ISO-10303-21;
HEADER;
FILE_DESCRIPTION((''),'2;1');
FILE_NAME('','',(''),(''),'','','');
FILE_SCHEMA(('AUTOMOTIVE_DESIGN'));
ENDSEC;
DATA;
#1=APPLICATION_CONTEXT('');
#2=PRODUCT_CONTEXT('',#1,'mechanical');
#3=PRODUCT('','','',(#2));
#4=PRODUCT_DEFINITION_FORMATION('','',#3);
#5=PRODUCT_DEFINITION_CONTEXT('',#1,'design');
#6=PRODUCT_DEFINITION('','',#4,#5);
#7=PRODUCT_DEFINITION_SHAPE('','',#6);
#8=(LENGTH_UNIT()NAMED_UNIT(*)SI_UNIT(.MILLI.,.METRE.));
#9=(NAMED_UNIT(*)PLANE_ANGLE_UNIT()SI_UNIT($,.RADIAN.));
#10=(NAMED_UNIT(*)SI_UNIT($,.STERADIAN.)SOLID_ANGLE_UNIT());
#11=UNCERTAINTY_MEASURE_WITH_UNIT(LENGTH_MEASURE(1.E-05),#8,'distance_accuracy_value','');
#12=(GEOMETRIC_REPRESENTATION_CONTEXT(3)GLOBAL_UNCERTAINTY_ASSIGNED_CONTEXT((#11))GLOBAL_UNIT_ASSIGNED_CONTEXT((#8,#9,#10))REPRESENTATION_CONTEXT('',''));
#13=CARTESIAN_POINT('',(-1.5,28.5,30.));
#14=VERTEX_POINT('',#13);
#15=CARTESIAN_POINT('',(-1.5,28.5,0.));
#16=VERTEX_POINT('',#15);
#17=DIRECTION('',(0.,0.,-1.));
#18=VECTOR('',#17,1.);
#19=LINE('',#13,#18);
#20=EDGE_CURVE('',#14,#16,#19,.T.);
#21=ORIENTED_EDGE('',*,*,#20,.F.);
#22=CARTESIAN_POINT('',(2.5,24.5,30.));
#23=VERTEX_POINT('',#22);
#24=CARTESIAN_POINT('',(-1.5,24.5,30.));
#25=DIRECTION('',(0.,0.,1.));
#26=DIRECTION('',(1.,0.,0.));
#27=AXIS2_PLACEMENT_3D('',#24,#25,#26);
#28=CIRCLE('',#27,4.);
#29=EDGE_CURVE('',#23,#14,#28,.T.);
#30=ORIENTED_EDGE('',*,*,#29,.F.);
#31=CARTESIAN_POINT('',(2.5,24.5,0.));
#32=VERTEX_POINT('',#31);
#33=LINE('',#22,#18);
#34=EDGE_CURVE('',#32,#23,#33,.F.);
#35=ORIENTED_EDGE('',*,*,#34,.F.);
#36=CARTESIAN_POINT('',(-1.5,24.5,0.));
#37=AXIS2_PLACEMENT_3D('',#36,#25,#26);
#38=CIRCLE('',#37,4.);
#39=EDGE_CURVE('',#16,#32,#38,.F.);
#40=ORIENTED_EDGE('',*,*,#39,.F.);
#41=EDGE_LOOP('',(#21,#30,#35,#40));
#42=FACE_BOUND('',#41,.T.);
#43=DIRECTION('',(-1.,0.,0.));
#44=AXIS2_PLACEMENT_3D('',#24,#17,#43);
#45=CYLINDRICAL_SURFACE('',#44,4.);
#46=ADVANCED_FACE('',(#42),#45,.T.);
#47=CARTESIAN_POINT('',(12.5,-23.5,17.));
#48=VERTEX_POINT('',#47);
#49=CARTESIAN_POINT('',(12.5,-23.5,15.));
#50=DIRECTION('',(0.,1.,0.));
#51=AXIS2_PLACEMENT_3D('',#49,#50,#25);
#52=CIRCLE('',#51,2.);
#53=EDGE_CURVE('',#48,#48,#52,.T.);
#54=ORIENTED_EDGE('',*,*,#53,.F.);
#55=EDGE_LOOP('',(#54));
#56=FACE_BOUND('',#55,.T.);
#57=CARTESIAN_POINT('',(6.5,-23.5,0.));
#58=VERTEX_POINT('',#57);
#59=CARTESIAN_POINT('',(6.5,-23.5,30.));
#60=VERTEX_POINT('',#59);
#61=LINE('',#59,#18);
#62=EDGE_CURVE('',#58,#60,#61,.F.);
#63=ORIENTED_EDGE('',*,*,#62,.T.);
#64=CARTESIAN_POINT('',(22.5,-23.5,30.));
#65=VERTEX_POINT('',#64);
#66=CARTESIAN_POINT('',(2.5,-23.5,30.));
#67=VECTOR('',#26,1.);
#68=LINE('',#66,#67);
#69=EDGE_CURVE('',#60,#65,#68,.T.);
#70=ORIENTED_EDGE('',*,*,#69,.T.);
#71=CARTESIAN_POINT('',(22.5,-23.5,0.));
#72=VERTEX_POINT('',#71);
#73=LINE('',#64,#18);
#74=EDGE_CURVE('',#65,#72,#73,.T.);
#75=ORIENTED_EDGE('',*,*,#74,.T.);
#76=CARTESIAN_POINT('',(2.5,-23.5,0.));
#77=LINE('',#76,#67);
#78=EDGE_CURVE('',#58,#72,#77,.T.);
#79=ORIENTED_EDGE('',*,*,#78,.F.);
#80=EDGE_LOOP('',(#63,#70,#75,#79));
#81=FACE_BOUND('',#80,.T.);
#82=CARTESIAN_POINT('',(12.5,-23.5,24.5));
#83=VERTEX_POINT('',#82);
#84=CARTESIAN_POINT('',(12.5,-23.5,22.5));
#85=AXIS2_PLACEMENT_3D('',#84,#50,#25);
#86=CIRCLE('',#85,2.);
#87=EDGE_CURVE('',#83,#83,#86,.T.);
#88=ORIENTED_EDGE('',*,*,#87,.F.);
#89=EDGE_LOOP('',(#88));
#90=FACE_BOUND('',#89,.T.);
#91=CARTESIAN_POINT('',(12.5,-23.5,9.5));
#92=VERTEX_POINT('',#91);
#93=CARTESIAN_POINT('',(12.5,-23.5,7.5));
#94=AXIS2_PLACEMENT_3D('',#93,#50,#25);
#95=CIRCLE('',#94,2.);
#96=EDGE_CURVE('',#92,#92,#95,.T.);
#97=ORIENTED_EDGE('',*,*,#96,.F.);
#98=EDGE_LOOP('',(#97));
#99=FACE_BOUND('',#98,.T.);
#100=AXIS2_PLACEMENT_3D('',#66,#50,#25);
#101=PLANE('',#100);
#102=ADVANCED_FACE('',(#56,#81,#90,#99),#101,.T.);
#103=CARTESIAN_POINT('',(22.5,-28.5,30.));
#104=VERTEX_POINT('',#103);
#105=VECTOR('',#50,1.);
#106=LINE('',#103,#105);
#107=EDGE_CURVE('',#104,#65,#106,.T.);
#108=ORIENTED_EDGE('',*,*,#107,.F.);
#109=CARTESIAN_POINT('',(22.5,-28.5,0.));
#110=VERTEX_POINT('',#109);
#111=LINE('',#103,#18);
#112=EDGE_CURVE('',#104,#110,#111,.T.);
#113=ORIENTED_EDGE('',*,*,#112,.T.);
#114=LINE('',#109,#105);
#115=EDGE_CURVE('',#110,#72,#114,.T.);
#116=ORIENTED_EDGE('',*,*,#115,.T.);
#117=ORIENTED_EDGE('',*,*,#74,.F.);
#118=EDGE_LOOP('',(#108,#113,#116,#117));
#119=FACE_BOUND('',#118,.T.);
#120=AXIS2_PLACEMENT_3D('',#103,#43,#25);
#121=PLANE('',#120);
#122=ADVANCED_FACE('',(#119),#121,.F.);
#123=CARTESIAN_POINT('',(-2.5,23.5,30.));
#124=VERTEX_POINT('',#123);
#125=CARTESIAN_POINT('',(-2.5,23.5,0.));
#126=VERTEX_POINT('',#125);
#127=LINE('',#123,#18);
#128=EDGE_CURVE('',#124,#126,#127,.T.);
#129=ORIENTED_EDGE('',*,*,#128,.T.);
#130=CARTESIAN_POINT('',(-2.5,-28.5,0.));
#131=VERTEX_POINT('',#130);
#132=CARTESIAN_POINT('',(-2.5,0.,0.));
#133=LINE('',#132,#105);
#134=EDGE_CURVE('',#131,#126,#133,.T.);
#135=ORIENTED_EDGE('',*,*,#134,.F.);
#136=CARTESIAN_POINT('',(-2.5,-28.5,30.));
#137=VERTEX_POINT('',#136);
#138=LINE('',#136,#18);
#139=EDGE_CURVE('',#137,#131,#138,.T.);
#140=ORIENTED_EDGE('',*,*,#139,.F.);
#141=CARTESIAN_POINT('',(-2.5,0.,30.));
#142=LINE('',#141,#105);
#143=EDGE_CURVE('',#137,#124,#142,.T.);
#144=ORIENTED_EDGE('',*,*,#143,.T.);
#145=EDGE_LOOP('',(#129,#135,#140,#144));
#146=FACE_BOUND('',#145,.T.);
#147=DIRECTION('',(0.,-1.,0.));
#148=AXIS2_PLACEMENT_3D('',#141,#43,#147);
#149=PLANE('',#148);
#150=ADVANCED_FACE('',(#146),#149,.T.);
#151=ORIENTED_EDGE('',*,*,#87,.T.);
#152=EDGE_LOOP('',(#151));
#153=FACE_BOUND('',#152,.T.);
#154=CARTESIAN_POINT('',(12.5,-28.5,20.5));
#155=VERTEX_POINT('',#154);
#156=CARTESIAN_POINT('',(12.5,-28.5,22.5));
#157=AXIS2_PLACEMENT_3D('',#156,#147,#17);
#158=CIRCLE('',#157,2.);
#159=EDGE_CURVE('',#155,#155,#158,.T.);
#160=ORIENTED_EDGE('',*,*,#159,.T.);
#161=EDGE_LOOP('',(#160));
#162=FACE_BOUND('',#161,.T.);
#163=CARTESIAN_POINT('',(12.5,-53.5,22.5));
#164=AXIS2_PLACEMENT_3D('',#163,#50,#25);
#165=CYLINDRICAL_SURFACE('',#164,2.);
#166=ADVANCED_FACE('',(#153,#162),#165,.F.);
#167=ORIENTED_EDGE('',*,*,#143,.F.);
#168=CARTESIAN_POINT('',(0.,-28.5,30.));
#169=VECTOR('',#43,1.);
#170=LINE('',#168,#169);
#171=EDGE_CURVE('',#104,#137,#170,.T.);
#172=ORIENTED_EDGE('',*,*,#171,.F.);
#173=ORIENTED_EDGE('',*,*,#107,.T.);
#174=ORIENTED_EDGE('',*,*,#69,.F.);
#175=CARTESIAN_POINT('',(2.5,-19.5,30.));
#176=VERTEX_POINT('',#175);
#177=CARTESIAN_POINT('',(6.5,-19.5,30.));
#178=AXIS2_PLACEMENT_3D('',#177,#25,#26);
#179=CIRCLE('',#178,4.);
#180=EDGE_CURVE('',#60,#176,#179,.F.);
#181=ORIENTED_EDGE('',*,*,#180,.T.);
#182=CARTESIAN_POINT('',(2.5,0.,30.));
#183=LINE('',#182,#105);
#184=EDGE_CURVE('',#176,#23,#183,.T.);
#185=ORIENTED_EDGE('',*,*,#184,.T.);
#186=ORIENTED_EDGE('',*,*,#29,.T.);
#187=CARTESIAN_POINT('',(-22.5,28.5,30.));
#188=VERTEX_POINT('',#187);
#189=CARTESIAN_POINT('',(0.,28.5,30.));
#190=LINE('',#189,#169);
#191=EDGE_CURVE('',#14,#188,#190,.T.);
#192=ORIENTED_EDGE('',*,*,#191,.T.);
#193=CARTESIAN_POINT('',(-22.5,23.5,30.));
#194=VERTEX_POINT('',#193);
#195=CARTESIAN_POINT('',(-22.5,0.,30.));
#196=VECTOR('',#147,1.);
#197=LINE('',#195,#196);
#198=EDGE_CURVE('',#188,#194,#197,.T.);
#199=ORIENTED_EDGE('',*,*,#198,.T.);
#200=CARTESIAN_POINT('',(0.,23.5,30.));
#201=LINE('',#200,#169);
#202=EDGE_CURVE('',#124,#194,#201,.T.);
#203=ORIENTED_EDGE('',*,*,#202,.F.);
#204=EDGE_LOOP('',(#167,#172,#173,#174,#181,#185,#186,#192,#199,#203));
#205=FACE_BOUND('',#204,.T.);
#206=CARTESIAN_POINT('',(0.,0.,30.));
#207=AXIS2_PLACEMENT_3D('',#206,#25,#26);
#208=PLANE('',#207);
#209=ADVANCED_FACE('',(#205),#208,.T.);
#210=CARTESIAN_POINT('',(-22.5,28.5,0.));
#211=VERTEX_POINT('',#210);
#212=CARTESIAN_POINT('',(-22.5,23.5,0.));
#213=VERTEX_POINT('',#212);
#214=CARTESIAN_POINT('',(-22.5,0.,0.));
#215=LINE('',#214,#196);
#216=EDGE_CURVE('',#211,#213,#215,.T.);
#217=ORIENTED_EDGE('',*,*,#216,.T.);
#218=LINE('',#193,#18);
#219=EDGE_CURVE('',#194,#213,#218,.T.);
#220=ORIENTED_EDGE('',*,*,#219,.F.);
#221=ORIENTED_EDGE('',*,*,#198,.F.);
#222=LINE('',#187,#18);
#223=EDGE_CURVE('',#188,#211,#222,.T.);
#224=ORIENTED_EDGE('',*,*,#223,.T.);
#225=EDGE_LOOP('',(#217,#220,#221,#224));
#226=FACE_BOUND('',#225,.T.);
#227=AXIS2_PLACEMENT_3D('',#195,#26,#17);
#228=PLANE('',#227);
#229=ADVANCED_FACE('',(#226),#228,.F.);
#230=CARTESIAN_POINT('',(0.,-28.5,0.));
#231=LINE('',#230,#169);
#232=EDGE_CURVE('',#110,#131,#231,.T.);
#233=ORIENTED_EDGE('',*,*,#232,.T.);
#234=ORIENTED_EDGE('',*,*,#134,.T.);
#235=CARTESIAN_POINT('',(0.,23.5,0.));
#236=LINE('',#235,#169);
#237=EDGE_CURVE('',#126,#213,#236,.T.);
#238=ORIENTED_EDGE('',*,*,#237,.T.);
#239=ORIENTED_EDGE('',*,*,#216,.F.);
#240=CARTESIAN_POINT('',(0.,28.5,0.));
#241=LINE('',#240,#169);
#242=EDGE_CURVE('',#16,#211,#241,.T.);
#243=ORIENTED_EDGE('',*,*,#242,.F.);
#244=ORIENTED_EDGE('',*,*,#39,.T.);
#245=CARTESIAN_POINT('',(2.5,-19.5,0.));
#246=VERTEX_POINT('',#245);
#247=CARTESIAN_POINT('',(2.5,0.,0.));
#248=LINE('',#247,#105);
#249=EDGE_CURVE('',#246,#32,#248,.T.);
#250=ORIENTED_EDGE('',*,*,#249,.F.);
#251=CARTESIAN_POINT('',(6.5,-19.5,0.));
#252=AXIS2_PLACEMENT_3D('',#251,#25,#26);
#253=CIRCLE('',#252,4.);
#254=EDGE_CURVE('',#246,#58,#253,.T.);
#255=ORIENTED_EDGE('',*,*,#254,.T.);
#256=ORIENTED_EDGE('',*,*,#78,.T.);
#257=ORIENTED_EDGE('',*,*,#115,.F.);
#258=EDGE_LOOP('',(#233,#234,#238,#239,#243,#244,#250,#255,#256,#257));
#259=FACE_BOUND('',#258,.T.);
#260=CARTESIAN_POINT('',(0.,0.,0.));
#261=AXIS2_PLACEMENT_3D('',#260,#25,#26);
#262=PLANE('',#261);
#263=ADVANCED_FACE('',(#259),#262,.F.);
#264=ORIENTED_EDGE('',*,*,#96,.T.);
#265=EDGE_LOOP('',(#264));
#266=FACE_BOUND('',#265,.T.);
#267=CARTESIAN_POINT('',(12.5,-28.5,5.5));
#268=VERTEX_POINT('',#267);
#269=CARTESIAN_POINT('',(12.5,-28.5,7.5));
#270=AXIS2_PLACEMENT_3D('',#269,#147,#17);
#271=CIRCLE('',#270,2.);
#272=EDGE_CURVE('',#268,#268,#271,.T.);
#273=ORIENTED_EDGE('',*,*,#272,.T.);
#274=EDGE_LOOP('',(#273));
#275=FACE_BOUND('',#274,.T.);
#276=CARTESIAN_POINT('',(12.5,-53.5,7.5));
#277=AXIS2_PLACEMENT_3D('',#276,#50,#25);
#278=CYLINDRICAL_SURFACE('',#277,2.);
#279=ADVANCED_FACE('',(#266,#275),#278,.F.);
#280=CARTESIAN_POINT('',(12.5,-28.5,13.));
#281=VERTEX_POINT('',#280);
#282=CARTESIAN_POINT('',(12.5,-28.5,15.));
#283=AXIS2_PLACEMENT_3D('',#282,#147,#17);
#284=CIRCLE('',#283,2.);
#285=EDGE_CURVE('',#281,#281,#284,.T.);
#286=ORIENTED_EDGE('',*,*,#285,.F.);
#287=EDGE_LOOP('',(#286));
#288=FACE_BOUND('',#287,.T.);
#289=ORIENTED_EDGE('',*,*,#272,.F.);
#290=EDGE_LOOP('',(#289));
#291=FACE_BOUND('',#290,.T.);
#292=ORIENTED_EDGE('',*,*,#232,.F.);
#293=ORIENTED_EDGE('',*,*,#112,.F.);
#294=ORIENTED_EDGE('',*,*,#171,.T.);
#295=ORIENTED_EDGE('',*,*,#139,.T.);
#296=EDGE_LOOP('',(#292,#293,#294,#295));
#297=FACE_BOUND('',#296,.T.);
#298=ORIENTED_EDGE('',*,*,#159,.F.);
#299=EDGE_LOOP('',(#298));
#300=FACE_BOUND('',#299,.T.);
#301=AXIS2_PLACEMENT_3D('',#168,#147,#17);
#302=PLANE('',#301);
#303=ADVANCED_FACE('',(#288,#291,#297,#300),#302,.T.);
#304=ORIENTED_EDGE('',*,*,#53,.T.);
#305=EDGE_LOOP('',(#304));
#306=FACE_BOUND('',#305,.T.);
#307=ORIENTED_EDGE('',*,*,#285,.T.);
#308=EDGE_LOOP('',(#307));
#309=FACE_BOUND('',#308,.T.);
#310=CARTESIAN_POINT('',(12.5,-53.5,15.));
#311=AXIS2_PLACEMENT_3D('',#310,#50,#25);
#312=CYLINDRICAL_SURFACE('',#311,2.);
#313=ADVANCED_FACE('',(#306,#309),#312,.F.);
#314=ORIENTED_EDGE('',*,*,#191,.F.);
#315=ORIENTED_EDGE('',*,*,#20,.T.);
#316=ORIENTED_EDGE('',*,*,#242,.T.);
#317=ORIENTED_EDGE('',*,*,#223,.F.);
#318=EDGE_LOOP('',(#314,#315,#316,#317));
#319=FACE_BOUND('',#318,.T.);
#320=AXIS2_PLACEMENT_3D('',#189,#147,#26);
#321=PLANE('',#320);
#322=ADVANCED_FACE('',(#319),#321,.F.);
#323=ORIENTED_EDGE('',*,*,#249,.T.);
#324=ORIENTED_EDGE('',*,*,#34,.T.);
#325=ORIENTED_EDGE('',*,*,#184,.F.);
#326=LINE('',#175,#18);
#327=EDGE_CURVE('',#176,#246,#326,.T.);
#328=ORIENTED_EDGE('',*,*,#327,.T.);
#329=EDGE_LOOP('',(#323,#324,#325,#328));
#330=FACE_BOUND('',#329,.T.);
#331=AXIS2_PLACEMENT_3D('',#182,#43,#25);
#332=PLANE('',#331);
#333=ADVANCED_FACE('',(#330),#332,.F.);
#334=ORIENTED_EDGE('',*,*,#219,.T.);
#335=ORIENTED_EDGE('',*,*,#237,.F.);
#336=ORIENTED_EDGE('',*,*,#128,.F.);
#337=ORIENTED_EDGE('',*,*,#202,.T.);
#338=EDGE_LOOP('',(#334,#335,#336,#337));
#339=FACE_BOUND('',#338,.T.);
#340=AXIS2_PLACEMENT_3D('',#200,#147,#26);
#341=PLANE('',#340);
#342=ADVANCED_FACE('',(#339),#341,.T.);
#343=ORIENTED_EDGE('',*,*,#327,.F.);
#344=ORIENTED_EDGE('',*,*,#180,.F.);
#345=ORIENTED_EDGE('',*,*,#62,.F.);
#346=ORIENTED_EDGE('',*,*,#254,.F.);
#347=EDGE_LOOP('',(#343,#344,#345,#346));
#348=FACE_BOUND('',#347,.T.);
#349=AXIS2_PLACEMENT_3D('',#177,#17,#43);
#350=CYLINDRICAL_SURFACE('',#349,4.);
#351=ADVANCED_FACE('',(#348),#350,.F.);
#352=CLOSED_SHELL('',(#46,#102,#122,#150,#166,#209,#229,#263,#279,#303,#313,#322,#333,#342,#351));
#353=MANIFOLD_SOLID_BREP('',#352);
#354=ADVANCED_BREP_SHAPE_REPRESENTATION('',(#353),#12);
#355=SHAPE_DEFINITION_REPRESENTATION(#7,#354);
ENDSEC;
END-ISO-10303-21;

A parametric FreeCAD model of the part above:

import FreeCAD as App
import Part
import Sketcher

V = App.Vector
Q = App.Units.Quantity


def edges_at(feature, points):
    """Names of the edges that pass closest to the given points."""
    edges = feature.Shape.Edges
    near = lambda p: min(range(len(edges)), key=lambda i: edges[i].distToShape(Part.Vertex(*p))[0])
    return sorted({f"Edge{near(p) + 1}" for p in points})


def add_polygon(sketch, points):
    """Adds a closed chain of lines whose ends are joined by coincident constraints."""
    first, n = sketch.GeometryCount, len(points)
    for a, b in zip(points, points[1:] + points[:1]):
        sketch.addGeometry(Part.LineSegment(App.Vector(*a, 0), App.Vector(*b, 0)), False)
    for i in range(n):
        sketch.addConstraint(Sketcher.Constraint("Coincident", first + i, 2, first + (i + 1) % n, 1))

doc = App.newDocument("Part")
params = doc.addObject("Spreadsheet::Sheet", "Params")
for row, (alias, value) in enumerate([
    ("sketch1_width", "20 mm"),
    ("sketch1_width2", "25 mm"),
    ("sketch1_height", "5 mm"),
    ("sketch1_height2", "52 mm"),
    ("pad1_length", "30 mm"),
    ("fillet_radius", "4 mm"),
    ("sketch2_diameter", "4 mm"),
    ("pocket1_length", "30 mm"),
], start=1):
    params.set(f"A{row}", alias)
    params.set(f"B{row}", "=" + value)
    params.setAlias(f"B{row}", alias)

body = doc.addObject("PartDesign::Body", "Body")

# Sketch on XY plane
sketch1 = doc.addObject("Sketcher::SketchObject", "Sketch")
body.addObject(sketch1)
sketch1.AttachmentSupport = (doc.XY_Plane, [""])
sketch1.MapMode = "FlatFace"
add_polygon(sketch1, [(-22, 28), (-22, 24), (-2, 24), (-2, -28), (22, -28), (22, -24), (2, -24), (2, 28)])  # lines 0-7
sketch1.addConstraint([
    Sketcher.Constraint("Vertical", 0),
    Sketcher.Constraint("Horizontal", 1),
    Sketcher.Constraint("Vertical", 2),
    Sketcher.Constraint("Horizontal", 3),
    Sketcher.Constraint("Vertical", 4),
    Sketcher.Constraint("Horizontal", 5),
    Sketcher.Constraint("Vertical", 6),
    Sketcher.Constraint("Horizontal", 7),
    Sketcher.Constraint("Symmetric", 0, 2, 4, 2, -1, 1),
    Sketcher.Constraint("Symmetric", 2, 2, 6, 2, -1, 1),
    Sketcher.Constraint("DistanceX", 1, 1, 1, 2, Q("20 mm")),
    Sketcher.Constraint("DistanceX", 3, 1, 3, 2, Q("25 mm")),
    Sketcher.Constraint("DistanceY", 0, 2, 0, 1, Q("5 mm")),
    Sketcher.Constraint("DistanceY", 2, 2, 2, 1, Q("52 mm")),
])
sketch1.setExpression("Constraints[18]", "Params.sketch1_width")
sketch1.setExpression("Constraints[19]", "Params.sketch1_width2")
sketch1.setExpression("Constraints[20]", "Params.sketch1_height")
sketch1.setExpression("Constraints[21]", "Params.sketch1_height2")
pad1 = doc.addObject("PartDesign::Pad", "Pad")
body.addObject(pad1)
pad1.Profile = sketch1
pad1.setExpression("Length", "Params.pad1_length")
doc.recompute()

fillet = doc.addObject("PartDesign::Fillet", "Fillet")
body.addObject(fillet)
fillet.Base = (pad1, edges_at(pad1, [(2.5, 28.5, 15), (2.5, -23.5, 15)]))
fillet.setExpression("Radius", "Params.fillet_radius")

# Sketch on XZ plane
sketch2 = doc.addObject("Sketcher::SketchObject", "Sketch001")
body.addObject(sketch2)
sketch2.AttachmentSupport = (doc.XZ_Plane, [""])
sketch2.MapMode = "FlatFace"
sketch2.AttachmentOffset = App.Placement(V(0, 0, 23.5), App.Rotation())
sketch2.addGeometry([
    Part.Circle(V(12.5, 15, 0), V(0, 0, 1), 2),
    Part.Circle(V(12.5, 22.5, 0), V(0, 0, 1), 2),
    Part.Circle(V(12.5, 7.5, 0), V(0, 0, 1), 2),
], False)
sketch2.addConstraint([
    Sketcher.Constraint("Equal", 0, 1),
    Sketcher.Constraint("Equal", 1, 2),
    Sketcher.Constraint("Vertical", 0, 3, 1, 3),
    Sketcher.Constraint("Vertical", 1, 3, 2, 3),
    Sketcher.Constraint("Diameter", 0, Q("4 mm")),
    Sketcher.Constraint("DistanceY", -1, 1, 0, 3, Q("15 mm")),
    Sketcher.Constraint("DistanceY", 2, 3, 1, 3, Q("15 mm")),
    Sketcher.Constraint("DistanceX", -1, 1, 0, 3, Q("12.5 mm")),
    Sketcher.Constraint("DistanceY", -1, 1, 1, 3, Q("22.5 mm")),
])
sketch2.setExpression("Constraints[4]", "Params.sketch2_diameter")
pocket1 = doc.addObject("PartDesign::Pocket", "Pocket")
body.addObject(pocket1)
pocket1.Profile = sketch2
pocket1.setExpression("Length", "Params.pocket1_length")
pocket1.Reversed = True

doc.recompute()
